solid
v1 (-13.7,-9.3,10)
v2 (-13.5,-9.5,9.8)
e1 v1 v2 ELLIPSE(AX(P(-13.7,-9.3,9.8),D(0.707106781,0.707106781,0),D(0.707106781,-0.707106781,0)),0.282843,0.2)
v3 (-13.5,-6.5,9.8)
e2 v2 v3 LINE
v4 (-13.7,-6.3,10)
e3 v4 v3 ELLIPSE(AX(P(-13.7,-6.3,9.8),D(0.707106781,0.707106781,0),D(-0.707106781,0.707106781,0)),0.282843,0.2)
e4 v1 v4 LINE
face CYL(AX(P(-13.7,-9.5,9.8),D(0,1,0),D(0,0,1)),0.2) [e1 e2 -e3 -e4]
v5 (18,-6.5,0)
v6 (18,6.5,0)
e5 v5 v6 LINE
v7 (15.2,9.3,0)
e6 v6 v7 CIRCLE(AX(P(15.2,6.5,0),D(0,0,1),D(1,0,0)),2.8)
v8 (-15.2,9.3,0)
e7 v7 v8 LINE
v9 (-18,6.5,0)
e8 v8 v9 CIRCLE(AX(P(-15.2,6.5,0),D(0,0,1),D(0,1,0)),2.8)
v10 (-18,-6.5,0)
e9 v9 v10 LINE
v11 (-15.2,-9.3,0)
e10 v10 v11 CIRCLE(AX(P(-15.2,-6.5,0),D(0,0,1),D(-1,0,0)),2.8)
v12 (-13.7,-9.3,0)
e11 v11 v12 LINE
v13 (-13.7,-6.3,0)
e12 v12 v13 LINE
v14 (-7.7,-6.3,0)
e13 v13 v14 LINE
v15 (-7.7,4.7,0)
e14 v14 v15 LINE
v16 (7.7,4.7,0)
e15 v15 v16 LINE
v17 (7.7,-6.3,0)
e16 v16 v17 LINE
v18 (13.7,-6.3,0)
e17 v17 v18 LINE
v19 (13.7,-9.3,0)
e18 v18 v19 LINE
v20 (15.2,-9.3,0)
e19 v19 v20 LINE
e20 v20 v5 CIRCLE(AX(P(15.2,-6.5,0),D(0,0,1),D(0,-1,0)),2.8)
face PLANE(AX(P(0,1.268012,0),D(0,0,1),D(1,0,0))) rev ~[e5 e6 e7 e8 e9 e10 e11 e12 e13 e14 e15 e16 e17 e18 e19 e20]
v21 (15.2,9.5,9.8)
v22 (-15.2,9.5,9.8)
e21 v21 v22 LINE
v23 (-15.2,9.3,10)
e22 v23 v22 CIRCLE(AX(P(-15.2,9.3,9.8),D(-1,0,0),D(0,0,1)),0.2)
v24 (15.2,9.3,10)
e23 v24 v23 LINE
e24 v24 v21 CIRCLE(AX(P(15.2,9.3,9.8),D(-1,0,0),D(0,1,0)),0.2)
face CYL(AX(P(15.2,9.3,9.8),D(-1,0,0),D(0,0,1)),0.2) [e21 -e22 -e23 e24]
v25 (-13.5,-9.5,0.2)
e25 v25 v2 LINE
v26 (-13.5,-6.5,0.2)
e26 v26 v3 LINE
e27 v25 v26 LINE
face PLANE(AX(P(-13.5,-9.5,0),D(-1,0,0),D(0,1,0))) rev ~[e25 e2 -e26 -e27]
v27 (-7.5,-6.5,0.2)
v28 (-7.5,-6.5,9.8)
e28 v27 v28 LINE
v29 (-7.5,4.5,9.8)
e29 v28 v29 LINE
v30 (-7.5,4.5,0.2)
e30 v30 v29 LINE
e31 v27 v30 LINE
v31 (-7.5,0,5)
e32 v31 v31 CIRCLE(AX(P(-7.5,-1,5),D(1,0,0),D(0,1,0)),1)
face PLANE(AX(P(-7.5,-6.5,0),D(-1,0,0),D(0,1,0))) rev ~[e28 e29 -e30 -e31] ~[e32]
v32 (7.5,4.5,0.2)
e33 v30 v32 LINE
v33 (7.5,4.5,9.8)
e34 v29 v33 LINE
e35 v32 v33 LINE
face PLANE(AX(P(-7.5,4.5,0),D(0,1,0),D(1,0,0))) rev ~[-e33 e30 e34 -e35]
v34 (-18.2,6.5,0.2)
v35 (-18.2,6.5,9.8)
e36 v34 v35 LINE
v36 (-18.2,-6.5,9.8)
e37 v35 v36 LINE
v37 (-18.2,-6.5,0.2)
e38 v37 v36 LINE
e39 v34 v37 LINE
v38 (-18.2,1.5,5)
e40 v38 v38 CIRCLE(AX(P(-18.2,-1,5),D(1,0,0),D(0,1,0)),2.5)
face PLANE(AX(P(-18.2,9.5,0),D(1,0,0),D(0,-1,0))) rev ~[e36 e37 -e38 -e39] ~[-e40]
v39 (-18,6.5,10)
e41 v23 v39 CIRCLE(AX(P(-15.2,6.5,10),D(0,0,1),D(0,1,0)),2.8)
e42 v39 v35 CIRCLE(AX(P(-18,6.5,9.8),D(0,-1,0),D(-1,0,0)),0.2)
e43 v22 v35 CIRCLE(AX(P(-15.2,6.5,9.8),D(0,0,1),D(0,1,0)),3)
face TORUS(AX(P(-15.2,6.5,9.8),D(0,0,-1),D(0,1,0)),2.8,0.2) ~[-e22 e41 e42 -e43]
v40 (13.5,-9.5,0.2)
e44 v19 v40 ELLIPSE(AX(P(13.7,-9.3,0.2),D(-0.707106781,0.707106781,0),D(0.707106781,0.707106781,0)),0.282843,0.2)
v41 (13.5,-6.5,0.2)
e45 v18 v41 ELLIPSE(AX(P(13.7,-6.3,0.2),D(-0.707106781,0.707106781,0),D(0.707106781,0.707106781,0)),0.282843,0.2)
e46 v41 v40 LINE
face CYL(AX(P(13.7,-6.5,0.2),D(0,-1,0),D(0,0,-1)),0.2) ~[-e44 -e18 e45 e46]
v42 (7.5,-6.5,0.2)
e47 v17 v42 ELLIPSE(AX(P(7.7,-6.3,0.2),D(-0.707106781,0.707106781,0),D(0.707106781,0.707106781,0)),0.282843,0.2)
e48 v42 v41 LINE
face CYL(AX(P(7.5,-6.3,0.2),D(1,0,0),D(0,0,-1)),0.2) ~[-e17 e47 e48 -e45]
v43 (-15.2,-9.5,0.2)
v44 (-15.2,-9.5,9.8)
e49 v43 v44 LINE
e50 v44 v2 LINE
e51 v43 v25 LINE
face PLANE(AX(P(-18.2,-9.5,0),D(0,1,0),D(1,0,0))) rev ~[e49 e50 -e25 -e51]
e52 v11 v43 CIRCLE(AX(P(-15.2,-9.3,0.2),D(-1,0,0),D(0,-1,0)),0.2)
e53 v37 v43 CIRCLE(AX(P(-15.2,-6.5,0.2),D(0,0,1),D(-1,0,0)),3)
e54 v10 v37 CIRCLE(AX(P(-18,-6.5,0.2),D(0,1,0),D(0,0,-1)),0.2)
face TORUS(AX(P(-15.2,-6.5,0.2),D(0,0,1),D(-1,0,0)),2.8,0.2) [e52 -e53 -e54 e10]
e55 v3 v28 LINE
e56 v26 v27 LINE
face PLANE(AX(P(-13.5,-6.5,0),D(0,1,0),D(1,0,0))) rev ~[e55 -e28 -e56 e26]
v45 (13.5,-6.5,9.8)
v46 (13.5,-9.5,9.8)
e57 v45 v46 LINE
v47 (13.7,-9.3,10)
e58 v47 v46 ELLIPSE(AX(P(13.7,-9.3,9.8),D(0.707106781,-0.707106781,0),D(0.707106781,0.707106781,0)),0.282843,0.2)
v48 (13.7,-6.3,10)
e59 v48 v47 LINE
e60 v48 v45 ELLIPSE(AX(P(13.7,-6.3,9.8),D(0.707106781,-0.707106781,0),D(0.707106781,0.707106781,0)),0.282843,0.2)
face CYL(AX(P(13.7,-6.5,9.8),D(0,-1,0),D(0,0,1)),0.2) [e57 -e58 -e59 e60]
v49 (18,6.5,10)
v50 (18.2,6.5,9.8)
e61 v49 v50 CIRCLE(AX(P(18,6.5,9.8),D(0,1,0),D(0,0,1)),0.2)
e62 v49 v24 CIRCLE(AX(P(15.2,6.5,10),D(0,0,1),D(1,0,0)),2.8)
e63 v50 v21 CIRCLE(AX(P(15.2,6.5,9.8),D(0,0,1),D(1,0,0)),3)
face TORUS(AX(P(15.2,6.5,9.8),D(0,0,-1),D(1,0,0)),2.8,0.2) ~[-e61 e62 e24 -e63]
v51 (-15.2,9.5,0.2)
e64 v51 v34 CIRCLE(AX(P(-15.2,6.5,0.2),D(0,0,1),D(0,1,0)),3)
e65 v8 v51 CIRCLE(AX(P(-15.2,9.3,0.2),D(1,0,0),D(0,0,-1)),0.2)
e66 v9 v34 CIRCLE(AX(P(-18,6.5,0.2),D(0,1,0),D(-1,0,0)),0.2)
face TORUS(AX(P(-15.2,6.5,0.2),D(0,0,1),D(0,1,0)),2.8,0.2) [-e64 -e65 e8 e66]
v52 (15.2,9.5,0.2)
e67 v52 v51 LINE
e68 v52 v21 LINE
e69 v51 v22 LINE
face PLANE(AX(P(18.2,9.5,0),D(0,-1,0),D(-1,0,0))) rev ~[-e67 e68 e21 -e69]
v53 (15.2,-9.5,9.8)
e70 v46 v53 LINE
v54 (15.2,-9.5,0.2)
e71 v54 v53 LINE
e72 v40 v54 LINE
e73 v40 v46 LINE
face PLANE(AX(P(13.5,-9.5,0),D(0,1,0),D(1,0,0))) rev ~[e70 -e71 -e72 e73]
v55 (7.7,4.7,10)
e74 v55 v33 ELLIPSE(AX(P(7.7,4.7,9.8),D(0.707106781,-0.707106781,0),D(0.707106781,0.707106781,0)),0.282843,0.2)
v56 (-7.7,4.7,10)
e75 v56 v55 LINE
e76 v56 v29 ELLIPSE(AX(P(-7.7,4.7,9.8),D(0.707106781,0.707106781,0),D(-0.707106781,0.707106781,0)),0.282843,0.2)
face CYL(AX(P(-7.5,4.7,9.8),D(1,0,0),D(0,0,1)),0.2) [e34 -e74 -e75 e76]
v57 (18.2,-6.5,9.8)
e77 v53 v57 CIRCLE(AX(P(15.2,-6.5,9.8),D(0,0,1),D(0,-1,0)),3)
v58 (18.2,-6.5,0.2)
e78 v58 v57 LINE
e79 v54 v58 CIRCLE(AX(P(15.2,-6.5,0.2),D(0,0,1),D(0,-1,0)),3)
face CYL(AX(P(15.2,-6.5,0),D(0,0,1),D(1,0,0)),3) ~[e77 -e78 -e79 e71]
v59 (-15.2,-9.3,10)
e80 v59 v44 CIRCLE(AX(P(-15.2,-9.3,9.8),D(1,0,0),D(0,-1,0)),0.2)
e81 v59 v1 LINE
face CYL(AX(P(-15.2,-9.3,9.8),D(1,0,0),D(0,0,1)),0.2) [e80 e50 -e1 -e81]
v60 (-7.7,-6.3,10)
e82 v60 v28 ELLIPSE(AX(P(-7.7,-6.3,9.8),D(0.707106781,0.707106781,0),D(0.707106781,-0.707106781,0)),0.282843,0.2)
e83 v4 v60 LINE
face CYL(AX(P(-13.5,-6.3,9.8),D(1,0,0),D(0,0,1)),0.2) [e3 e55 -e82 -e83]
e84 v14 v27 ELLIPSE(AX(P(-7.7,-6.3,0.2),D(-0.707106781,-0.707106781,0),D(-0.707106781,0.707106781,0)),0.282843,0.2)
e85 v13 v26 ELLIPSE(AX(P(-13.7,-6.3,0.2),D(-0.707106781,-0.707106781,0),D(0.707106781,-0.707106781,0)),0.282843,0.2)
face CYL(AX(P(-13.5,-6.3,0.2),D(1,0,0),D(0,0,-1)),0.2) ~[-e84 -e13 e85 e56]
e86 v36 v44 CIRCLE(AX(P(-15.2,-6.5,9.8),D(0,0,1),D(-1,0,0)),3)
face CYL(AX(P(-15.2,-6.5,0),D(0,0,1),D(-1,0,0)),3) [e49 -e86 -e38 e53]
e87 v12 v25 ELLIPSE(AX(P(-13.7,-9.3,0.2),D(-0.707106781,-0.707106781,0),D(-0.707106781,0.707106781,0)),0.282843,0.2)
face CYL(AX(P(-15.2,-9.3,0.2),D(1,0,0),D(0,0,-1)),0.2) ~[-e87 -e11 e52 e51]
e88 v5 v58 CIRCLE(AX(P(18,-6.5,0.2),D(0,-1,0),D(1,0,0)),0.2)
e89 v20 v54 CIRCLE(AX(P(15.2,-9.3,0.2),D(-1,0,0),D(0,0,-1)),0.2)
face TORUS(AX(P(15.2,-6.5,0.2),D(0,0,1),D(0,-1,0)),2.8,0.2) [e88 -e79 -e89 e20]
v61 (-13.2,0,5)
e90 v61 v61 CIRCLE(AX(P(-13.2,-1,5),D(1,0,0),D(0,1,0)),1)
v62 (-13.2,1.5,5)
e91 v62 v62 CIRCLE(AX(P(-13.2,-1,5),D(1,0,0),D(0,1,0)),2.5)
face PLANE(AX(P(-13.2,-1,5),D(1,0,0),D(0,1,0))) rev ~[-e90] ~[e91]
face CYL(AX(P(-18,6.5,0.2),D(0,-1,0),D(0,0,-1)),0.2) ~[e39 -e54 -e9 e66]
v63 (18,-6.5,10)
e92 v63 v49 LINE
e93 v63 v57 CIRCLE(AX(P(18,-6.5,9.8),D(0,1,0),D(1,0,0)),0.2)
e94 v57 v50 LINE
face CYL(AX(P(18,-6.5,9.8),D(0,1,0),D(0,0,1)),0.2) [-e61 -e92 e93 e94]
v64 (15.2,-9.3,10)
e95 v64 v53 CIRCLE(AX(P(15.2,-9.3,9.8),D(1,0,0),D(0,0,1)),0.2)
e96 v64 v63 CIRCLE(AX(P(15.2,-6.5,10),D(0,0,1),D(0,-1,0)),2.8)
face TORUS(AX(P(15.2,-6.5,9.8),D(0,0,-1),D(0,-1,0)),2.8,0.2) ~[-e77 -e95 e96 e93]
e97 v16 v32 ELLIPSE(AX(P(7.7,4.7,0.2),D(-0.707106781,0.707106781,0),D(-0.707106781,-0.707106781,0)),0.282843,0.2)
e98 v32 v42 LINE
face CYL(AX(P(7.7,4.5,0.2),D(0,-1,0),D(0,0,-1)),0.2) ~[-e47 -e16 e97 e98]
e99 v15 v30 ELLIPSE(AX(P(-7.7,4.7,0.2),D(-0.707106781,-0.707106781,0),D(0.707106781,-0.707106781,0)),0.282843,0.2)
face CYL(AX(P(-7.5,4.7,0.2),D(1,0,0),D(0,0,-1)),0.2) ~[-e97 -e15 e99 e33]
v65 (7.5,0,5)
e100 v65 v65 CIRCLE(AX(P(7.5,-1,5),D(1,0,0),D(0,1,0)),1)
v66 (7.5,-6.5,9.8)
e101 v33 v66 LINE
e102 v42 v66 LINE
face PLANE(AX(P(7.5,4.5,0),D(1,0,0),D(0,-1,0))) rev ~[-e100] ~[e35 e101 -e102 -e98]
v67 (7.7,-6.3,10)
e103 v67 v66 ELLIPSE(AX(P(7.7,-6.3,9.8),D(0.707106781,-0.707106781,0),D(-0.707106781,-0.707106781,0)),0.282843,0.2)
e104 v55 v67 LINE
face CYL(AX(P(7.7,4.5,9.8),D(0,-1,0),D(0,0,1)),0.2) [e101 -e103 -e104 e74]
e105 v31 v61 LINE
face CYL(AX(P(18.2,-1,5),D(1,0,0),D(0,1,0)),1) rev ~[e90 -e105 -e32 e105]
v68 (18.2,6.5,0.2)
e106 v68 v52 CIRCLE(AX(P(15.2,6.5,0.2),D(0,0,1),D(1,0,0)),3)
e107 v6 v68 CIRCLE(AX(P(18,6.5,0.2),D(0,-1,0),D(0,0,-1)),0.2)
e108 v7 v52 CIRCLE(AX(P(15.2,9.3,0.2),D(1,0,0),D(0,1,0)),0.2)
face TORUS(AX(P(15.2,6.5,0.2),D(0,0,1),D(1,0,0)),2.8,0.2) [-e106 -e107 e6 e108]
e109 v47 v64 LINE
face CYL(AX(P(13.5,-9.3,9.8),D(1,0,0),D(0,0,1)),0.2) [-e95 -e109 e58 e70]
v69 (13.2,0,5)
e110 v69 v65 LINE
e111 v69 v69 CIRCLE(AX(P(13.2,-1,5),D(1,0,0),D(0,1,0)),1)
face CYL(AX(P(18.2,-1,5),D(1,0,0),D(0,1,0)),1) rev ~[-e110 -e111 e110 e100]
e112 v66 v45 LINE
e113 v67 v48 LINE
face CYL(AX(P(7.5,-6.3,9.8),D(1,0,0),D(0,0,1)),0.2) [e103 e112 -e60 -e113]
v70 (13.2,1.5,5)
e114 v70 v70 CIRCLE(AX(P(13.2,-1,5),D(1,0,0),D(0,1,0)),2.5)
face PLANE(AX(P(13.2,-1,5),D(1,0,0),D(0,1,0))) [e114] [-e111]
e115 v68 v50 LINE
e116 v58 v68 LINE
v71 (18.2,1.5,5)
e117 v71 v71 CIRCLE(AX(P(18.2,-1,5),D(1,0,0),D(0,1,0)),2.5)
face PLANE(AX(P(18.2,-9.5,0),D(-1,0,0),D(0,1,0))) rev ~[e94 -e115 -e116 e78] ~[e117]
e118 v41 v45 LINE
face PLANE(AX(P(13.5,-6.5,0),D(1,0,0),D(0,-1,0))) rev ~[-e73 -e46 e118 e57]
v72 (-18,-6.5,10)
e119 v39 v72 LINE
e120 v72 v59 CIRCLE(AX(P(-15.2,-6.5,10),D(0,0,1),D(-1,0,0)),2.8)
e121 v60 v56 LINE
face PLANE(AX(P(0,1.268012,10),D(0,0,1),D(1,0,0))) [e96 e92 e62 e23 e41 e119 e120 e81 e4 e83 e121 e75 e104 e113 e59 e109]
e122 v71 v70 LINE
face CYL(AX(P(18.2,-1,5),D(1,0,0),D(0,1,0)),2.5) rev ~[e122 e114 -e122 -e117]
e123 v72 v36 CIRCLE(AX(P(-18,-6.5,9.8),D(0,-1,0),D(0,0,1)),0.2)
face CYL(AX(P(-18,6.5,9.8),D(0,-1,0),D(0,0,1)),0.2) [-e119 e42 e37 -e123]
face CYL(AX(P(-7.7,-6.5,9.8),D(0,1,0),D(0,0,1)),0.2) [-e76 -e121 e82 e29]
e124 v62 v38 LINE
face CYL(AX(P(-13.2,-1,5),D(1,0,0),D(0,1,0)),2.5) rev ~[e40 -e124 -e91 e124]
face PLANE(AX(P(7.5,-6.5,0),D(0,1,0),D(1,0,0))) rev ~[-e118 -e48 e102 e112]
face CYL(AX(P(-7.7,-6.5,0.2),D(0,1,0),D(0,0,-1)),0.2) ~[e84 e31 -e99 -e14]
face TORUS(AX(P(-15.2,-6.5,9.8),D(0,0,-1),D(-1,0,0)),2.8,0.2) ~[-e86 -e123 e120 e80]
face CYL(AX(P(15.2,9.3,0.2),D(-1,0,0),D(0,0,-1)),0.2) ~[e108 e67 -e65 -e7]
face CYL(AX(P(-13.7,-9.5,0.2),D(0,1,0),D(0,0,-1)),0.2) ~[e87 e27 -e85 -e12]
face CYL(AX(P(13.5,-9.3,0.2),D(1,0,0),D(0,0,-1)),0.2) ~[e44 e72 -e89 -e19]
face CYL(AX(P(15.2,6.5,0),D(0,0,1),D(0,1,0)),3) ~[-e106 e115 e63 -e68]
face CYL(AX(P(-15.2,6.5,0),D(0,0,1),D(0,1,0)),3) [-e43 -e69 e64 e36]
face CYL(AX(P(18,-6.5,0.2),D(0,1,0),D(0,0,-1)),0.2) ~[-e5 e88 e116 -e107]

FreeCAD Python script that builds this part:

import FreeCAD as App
import Part
import Sketcher
Q = App.Units.Quantity


def edges_at(feature, points):
    """Names of the edges that pass closest to the given points."""
    edges = feature.Shape.Edges
    near = lambda p: min(range(len(edges)), key=lambda i: edges[i].distToShape(Part.Vertex(*p))[0])
    return sorted({f"Edge{near(p) + 1}" for p in points})


def add_polygon(sketch, points):
    """Adds a closed chain of lines whose ends are joined by coincident constraints."""
    first, n = sketch.GeometryCount, len(points)
    for a, b in zip(points, points[1:] + points[:1]):
        sketch.addGeometry(Part.LineSegment(App.Vector(*a, 0), App.Vector(*b, 0)), False)
    for i in range(n):
        sketch.addConstraint(Sketcher.Constraint("Coincident", first + i, 2, first + (i + 1) % n, 1))

doc = App.newDocument("Part")
body = doc.addObject("PartDesign::Body", "Body")

# Sketch on XY plane
sketch1 = body.newObject("Sketcher::SketchObject", "Sketch")
sketch1.AttachmentSupport = (doc.getObject("XY_Plane"), [""])
sketch1.MapMode = "FlatFace"
add_polygon(sketch1, [(18.2, 9.5), (-18.2, 9.5), (-18.2, -9.5), (-13.5, -9.5), (-13.5, -6.5), (-7.5, -6.5), (-7.5, 4.5), (7.5, 4.5), (7.5, -6.5), (13.5, -6.5), (13.5, -9.5), (18.2, -9.5)])  # lines 0-11
sketch1.addConstraint(Sketcher.Constraint("Horizontal", 0))
sketch1.addConstraint(Sketcher.Constraint("Vertical", 1))
sketch1.addConstraint(Sketcher.Constraint("Horizontal", 2))
sketch1.addConstraint(Sketcher.Constraint("Vertical", 3))
sketch1.addConstraint(Sketcher.Constraint("Horizontal", 4))
sketch1.addConstraint(Sketcher.Constraint("Vertical", 5))
sketch1.addConstraint(Sketcher.Constraint("Horizontal", 6))
sketch1.addConstraint(Sketcher.Constraint("Vertical", 7))
sketch1.addConstraint(Sketcher.Constraint("Horizontal", 8))
sketch1.addConstraint(Sketcher.Constraint("Vertical", 9))
sketch1.addConstraint(Sketcher.Constraint("Horizontal", 10))
sketch1.addConstraint(Sketcher.Constraint("Vertical", 11))
sketch1.addConstraint(Sketcher.Constraint("Symmetric", 0, 2, 10, 2, -1, 1))
sketch1.addConstraint(Sketcher.Constraint("Symmetric", 4, 2, 7, 2, -2))
sketch1.addConstraint(Sketcher.Constraint("Symmetric", 2, 2, 9, 2, -2))
sketch1.addConstraint(Sketcher.Constraint("DistanceX", 4, 1, 4, 2, Q("6 mm")))
sketch1.addConstraint(Sketcher.Constraint("DistanceX", 6, 1, 6, 2, Q("15 mm")))
sketch1.addConstraint(Sketcher.Constraint("DistanceY", 1, 2, 1, 1, Q("19 mm")))
sketch1.addConstraint(Sketcher.Constraint("DistanceY", 3, 1, 3, 2, Q("3 mm")))
sketch1.addConstraint(Sketcher.Constraint("DistanceY", 5, 1, 5, 2, Q("11 mm")))
sketch1.addConstraint(Sketcher.Constraint("DistanceX", 0, 2, 0, 1, Q("36.4 mm")))
pad1 = body.newObject("PartDesign::Pad", "Pad")
pad1.Profile = sketch1
pad1.Length = 10

# Sketch on YZ plane
sketch2 = body.newObject("Sketcher::SketchObject", "Sketch001")
sketch2.AttachmentSupport = (doc.getObject("YZ_Plane"), [""])
sketch2.MapMode = "FlatFace"
sketch2.AttachmentOffset = App.Placement(App.Vector(0, 0, 18.2), App.Rotation())
sketch2.addGeometry(Part.Circle(App.Vector(-1, 5, 0), App.Vector(0, 0, 1), 1), False)
sketch2.addConstraint(Sketcher.Constraint("Diameter", 0, Q("2 mm")))
sketch2.addConstraint(Sketcher.Constraint("DistanceX", 0, 3, -1, 1, Q("1 mm")))
sketch2.addConstraint(Sketcher.Constraint("DistanceY", -1, 1, 0, 3, Q("5 mm")))
pocket1 = body.newObject("PartDesign::Pocket", "Pocket")
pocket1.Profile = sketch2
pocket1.Type = "ThroughAll"

# Sketch on YZ plane
sketch3 = body.newObject("Sketcher::SketchObject", "Sketch002")
sketch3.AttachmentSupport = (doc.getObject("YZ_Plane"), [""])
sketch3.MapMode = "FlatFace"
sketch3.AttachmentOffset = App.Placement(App.Vector(0, 0, 18.2), App.Rotation())
sketch3.addGeometry(Part.Circle(App.Vector(-1, 5, 0), App.Vector(0, 0, 1), 2.5), False)
sketch3.addConstraint(Sketcher.Constraint("Diameter", 0, Q("5 mm")))
sketch3.addConstraint(Sketcher.Constraint("DistanceX", 0, 3, -1, 1, Q("1 mm")))
sketch3.addConstraint(Sketcher.Constraint("DistanceY", -1, 1, 0, 3, Q("5 mm")))
pocket2 = body.newObject("PartDesign::Pocket", "Pocket001")
pocket2.Profile = sketch3
pocket2.Length = 5

# Sketch on YZ plane
sketch4 = body.newObject("Sketcher::SketchObject", "Sketch003")
sketch4.AttachmentSupport = (doc.getObject("YZ_Plane"), [""])
sketch4.MapMode = "FlatFace"
sketch4.AttachmentOffset = App.Placement(App.Vector(0, 0, -13.2), App.Rotation())
sketch4.addGeometry(Part.Circle(App.Vector(-1, 5, 0), App.Vector(0, 0, 1), 2.5), False)
sketch4.addConstraint(Sketcher.Constraint("Diameter", 0, Q("5 mm")))
sketch4.addConstraint(Sketcher.Constraint("DistanceX", 0, 3, -1, 1, Q("1 mm")))
sketch4.addConstraint(Sketcher.Constraint("DistanceY", -1, 1, 0, 3, Q("5 mm")))
pocket3 = body.newObject("PartDesign::Pocket", "Pocket002")
pocket3.Profile = sketch4
pocket3.Length = 5
doc.recompute()

fillet = body.newObject("PartDesign::Fillet", "Fillet")
fillet.Base = (pocket3, edges_at(pocket3, [
    (-18.2, -9.5, 5),
    (-18.2, 9.5, 5),
    (18.2, 9.5, 5),
    (18.2, -9.5, 5),
]))
fillet.Radius = 3
doc.recompute()

fillet2 = body.newObject("PartDesign::Fillet", "Fillet001")
fillet2.Base = (fillet, edges_at(fillet, [
    (14.35, -9.5, 10),
    (10.5, -6.5, 0),
    (7.5, -1, 0),
    (0, 4.5, 0),
    (-7.5, -1, 0),
    (-10.5, -6.5, 0),
    (-13.5, -8, 0),
    (14.35, -9.5, 0),
    (13.5, -8, 0),
    (-13.5, -8, 10),
    (-10.5, -6.5, 10),
    (-7.5, -1, 10),
    (0, 4.5, 10),
    (7.5, -1, 10),
    (-14.35, -9.5, 0),
    (-14.35, -9.5, 10),
    (10.5, -6.5, 10),
    (-18.2, 0, 0),
    (13.5, -8, 10),
    (0, 9.5, 0),
    (18.2, 0, 0),
    (17.321, 8.621, 0),
    (-17.321, 8.621, 0),
    (17.321, -8.621, 0),
    (-17.321, -8.621, 0),
    (-18.2, 0, 10),
    (18.2, 0, 10),
    (0, 9.5, 10),
    (17.321, 8.621, 10),
    (-17.321, 8.621, 10),
    (17.321, -8.621, 10),
    (-17.321, -8.621, 10),
]))
fillet2.Radius = 0.2

doc.recompute()
